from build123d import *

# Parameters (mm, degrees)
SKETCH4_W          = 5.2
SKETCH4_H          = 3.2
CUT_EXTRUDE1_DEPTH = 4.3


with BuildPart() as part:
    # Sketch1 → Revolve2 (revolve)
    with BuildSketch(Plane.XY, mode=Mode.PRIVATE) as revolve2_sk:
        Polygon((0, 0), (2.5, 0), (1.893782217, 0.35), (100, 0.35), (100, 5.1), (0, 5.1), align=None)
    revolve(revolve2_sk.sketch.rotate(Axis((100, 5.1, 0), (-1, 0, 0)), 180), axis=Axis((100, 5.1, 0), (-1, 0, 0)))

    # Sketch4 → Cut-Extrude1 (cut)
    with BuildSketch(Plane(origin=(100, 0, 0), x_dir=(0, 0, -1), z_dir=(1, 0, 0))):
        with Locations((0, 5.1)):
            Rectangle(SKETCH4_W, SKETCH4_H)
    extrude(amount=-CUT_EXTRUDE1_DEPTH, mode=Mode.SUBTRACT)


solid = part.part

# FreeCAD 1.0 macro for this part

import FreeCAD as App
import Part
import Sketcher
Q = App.Units.Quantity


def add_polygon(sketch, points):
    """Adds a closed chain of lines whose ends are joined by coincident constraints."""
    first, n = sketch.GeometryCount, len(points)
    for a, b in zip(points, points[1:] + points[:1]):
        sketch.addGeometry(Part.LineSegment(App.Vector(*a, 0), App.Vector(*b, 0)), False)
    for i in range(n):
        sketch.addConstraint(Sketcher.Constraint("Coincident", first + i, 2, first + (i + 1) % n, 1))

doc = App.newDocument("Part")
params = doc.addObject("Spreadsheet::Sheet", "Params")
for row, (alias, value) in enumerate([
    ("sketch1_width", "100 mm"),
    ("sketch1_width2", "2.5 mm"),
    ("sketch1_height", "5.1 mm"),
    ("sketch1_length", "0.7 mm"),
    ("revolution_angle", "360 deg"),
    ("sketch2_width", "3.2 mm"),
    ("sketch2_height", "5.2 mm"),
    ("pocket1_length", "4.3 mm"),
], start=1):
    params.set(f"A{row}", alias)
    params.set(f"B{row}", "=" + value)
    params.setAlias(f"B{row}", alias)

body = doc.addObject("PartDesign::Body", "Body")

sketch1 = body.newObject("Sketcher::SketchObject", "Sketch")
sketch1.AttachmentSupport = (doc.getObject("XY_Plane"), [""])
sketch1.MapMode = "FlatFace"
add_polygon(sketch1, [(0, 0), (2.5, 0), (1.9, 0.3), (100, 0.3), (100, 5.1), (0, 5.1)])
sketch1.addGeometry(Part.LineSegment(App.Vector(100, 5.1, 0), App.Vector(0, 5.1, 0)), True)
sketch1.addConstraint([
    Sketcher.Constraint("Horizontal", 0),
    Sketcher.Constraint("Horizontal", 2),
    Sketcher.Constraint("Vertical", 3),
    Sketcher.Constraint("Horizontal", 4),
    Sketcher.Constraint("Vertical", 5),
    Sketcher.Constraint("Horizontal", 6),
    Sketcher.Constraint("Coincident", 5, 2, -1, 1),
    Sketcher.Constraint("Coincident", 6, 1, 3, 2),
    Sketcher.Constraint("PointOnObject", 6, 2, -2),
    Sketcher.Constraint("DistanceX", 4, 2, 4, 1, Q("100 mm")),
    Sketcher.Constraint("Angle", 1, Q("150 deg")),
    Sketcher.Constraint("DistanceX", 0, 1, 0, 2, Q("2.5 mm")),
    Sketcher.Constraint("DistanceY", 5, 2, 5, 1, Q("5.1 mm")),
    Sketcher.Constraint("Distance", 1, Q("0.7 mm")),
])
sketch1.setExpression("Constraints[15]", "Params.sketch1_width")
sketch1.setExpression("Constraints[17]", "Params.sketch1_width2")
sketch1.setExpression("Constraints[18]", "Params.sketch1_height")
sketch1.setExpression("Constraints[19]", "Params.sketch1_length")
revolution = body.newObject("PartDesign::Revolution", "Revolution")
revolution.Profile = sketch1
revolution.ReferenceAxis = (sketch1, ["Axis0"])
revolution.setExpression("Angle", "Params.revolution_angle")

sketch2 = body.newObject("Sketcher::SketchObject", "Sketch001")
sketch2.AttachmentSupport = (doc.getObject("YZ_Plane"), [""])
sketch2.MapMode = "FlatFace"
sketch2.AttachmentOffset = App.Placement(App.Vector(0, 0, 100), App.Rotation())
add_polygon(sketch2, [(6.7, 2.6), (3.5, 2.6), (3.5, -2.6), (6.7, -2.6)])
sketch2.addConstraint([
    Sketcher.Constraint("Horizontal", 0),
    Sketcher.Constraint("Vertical", 1),
    Sketcher.Constraint("Horizontal", 2),
    Sketcher.Constraint("Vertical", 3),
    Sketcher.Constraint("DistanceX", 0, 2, 0, 1, Q("3.2 mm")),
    Sketcher.Constraint("DistanceY", 1, 2, 1, 1, Q("5.2 mm")),
    Sketcher.Constraint("DistanceX", -1, 1, 0, 2, Q("3.5 mm")),
    Sketcher.Constraint("DistanceY", -1, 1, 0, 2, Q("2.6 mm")),
])
sketch2.setExpression("Constraints[8]", "Params.sketch2_width")
sketch2.setExpression("Constraints[9]", "Params.sketch2_height")
pocket1 = body.newObject("PartDesign::Pocket", "Pocket")
pocket1.Profile = sketch2
pocket1.setExpression("Length", "Params.pocket1_length")

doc.recompute()
